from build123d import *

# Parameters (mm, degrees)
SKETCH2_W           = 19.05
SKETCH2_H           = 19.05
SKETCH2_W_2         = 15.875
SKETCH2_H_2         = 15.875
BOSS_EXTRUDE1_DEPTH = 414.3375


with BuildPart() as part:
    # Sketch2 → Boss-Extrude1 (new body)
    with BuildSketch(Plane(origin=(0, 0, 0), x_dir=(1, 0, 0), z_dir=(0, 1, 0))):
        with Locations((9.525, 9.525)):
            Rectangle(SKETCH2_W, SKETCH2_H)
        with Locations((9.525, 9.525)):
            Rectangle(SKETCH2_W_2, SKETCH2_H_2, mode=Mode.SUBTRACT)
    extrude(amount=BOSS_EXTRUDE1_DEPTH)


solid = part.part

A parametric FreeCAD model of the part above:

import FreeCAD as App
import Part
import Sketcher
from FreeCAD import Vector
Q = App.Units.Quantity

doc = App.newDocument("Part")
body = doc.addObject("PartDesign::Body", "Body")

sketch1 = body.newObject("Sketcher::SketchObject", "Sketch")
sketch1.AttachmentSupport = (doc.getObject("XZ_Plane"), [""])
sketch1.MapMode = "FlatFace"
sketch1.addGeometry([
    Part.LineSegment(Vector(0, -19, 0), Vector(0, 0, 0)),
    Part.LineSegment(Vector(0, 0, 0), Vector(19, 0, 0)),
    Part.LineSegment(Vector(19, 0, 0), Vector(19, -19, 0)),
    Part.LineSegment(Vector(19, -19, 0), Vector(0, -19, 0)),
    Part.LineSegment(Vector(17, -2, 0), Vector(2, -2, 0)),
    Part.LineSegment(Vector(2, -2, 0), Vector(2, -17, 0)),
    Part.LineSegment(Vector(2, -17, 0), Vector(17, -17, 0)),
    Part.LineSegment(Vector(17, -17, 0), Vector(17, -2, 0)),
], False)
sketch1.addConstraint([
    Sketcher.Constraint("Coincident", 0, 2, 1, 1),
    Sketcher.Constraint("Coincident", 1, 2, 2, 1),
    Sketcher.Constraint("Coincident", 2, 2, 3, 1),
    Sketcher.Constraint("Coincident", 3, 2, 0, 1),
    Sketcher.Constraint("Coincident", 4, 2, 5, 1),
    Sketcher.Constraint("Coincident", 5, 2, 6, 1),
    Sketcher.Constraint("Coincident", 6, 2, 7, 1),
    Sketcher.Constraint("Coincident", 7, 2, 4, 1),
    Sketcher.Constraint("Vertical", 0),
    Sketcher.Constraint("Horizontal", 1),
    Sketcher.Constraint("Vertical", 2),
    Sketcher.Constraint("Horizontal", 3),
    Sketcher.Constraint("Horizontal", 4),
    Sketcher.Constraint("Vertical", 5),
    Sketcher.Constraint("Horizontal", 6),
    Sketcher.Constraint("Vertical", 7),
    Sketcher.Constraint("Coincident", 0, 2, -1, 1),
    Sketcher.Constraint("Equal", 3, 0),
    Sketcher.Constraint("Equal", 6, 5),
    Sketcher.Constraint("DistanceX", 1, 1, 1, 2, Q("0.75 in")),
    Sketcher.Constraint("DistanceX", 4, 2, 4, 1, Q("0.625 in")),
    Sketcher.Constraint("DistanceX", -1, 1, 4, 2, Q("0.0625 in")),
    Sketcher.Constraint("DistanceY", 4, 2, -1, 1, Q("0.0625 in")),
])
pad1 = body.newObject("PartDesign::Pad", "Pad")
pad1.Profile = sketch1
pad1.Length = Q("16.3125 in")
pad1.Reversed = True

doc.recompute()
